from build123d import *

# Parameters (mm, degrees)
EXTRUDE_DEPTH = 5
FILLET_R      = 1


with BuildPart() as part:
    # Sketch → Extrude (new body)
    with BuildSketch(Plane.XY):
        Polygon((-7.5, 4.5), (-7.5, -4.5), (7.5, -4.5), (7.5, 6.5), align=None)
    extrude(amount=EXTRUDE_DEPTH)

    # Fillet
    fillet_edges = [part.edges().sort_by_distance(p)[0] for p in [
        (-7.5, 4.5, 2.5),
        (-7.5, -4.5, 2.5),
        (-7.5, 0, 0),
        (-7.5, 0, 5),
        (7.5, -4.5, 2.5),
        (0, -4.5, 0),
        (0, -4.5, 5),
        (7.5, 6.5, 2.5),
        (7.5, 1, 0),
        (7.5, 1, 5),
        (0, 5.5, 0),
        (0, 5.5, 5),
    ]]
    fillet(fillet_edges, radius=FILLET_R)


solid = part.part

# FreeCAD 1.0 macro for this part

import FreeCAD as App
import Part
import Sketcher
from FreeCAD import Vector
Q = App.Units.Quantity

doc = App.newDocument("Part")
params = doc.addObject("Spreadsheet::Sheet", "Params")
for row, (alias, value) in enumerate([
    ("sketch1_width", "15 mm"),
    ("sketch1_height", "9 mm"),
    ("sketch1_height2", "11 mm"),
    ("pad1_length", "5 mm"),
    ("fillet_radius", "1 mm"),
], start=1):
    params.set(f"A{row}", alias)
    params.set(f"B{row}", "=" + value)
    params.setAlias(f"B{row}", alias)

body = doc.addObject("PartDesign::Body", "Body")

sketch1 = doc.addObject("Sketcher::SketchObject", "Sketch")
body.addObject(sketch1)
sketch1.AttachmentSupport = (doc.XY_Plane, [""])
sketch1.MapMode = "FlatFace"
sketch1.addGeometry(Part.LineSegment(Vector(-8, 4, 0), Vector(-8, -4, 0)), False)
sketch1.addGeometry(Part.LineSegment(Vector(-8, -4, 0), Vector(8, -4, 0)), False)
sketch1.addGeometry(Part.LineSegment(Vector(8, -4, 0), Vector(8, 6, 0)), False)
sketch1.addGeometry(Part.LineSegment(Vector(8, 6, 0), Vector(-8, 4, 0)), False)
sketch1.addConstraint(Sketcher.Constraint("Coincident", 0, 2, 1, 1))
sketch1.addConstraint(Sketcher.Constraint("Coincident", 1, 2, 2, 1))
sketch1.addConstraint(Sketcher.Constraint("Coincident", 2, 2, 3, 1))
sketch1.addConstraint(Sketcher.Constraint("Coincident", 3, 2, 0, 1))
sketch1.addConstraint(Sketcher.Constraint("Vertical", 0))
sketch1.addConstraint(Sketcher.Constraint("Horizontal", 1))
sketch1.addConstraint(Sketcher.Constraint("Vertical", 2))
sketch1.addConstraint(Sketcher.Constraint("Symmetric", 1, 2, 3, 2, -1, 1))
sketch1.addConstraint(Sketcher.Constraint("DistanceX", 1, 1, 1, 2, Q("15 mm")))
sketch1.addConstraint(Sketcher.Constraint("DistanceY", 0, 2, 0, 1, Q("9 mm")))
sketch1.addConstraint(Sketcher.Constraint("DistanceY", 2, 1, 2, 2, Q("11 mm")))
sketch1.setExpression("Constraints[8]", "Params.sketch1_width")
sketch1.setExpression("Constraints[9]", "Params.sketch1_height")
sketch1.setExpression("Constraints[10]", "Params.sketch1_height2")
pad1 = doc.addObject("PartDesign::Pad", "Pad")
body.addObject(pad1)
pad1.Profile = sketch1
pad1.setExpression("Length", "Params.pad1_length")
doc.recompute()

fillet = doc.addObject("PartDesign::Fillet", "Fillet")
body.addObject(fillet)
fillet.Base = (pad1, ["Edge1"])
fillet.UseAllEdges = True
fillet.setExpression("Radius", "Params.fillet_radius")

doc.recompute()
